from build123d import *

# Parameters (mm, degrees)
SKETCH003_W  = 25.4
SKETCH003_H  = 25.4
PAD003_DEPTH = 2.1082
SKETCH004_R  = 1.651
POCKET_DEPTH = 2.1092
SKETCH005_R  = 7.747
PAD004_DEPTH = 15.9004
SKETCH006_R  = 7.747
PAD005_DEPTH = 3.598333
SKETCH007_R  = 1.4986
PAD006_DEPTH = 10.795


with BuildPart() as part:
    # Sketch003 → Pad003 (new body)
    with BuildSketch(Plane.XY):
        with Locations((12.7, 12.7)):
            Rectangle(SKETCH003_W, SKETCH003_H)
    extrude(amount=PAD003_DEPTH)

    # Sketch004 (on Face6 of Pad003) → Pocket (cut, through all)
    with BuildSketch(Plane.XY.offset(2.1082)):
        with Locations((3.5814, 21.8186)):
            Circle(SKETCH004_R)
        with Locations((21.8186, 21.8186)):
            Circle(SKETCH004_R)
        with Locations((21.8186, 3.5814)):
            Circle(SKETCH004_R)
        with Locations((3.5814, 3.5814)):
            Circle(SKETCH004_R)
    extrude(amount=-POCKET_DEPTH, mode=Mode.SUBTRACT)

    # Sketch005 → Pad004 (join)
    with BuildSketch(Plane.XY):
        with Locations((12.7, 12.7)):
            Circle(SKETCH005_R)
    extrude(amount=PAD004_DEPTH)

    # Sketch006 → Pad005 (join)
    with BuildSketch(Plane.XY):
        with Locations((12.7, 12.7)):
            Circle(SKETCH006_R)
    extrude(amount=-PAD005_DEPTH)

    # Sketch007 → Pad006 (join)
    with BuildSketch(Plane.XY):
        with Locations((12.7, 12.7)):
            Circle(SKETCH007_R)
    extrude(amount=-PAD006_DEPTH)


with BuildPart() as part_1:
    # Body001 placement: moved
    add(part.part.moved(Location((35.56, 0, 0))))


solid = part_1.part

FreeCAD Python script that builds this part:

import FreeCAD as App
import Part
import Sketcher

V = App.Vector
Q = App.Units.Quantity

doc = App.newDocument("Part")
body = doc.addObject("PartDesign::Body", "Body")

sketch1 = body.newObject("Sketcher::SketchObject", "Sketch")
sketch1.AttachmentSupport = (doc.getObject("XY_Plane"), [""])
sketch1.MapMode = "FlatFace"
sketch1.addGeometry([
    Part.LineSegment(V(0, 25, 0), V(0, 0, 0)),
    Part.LineSegment(V(0, 0, 0), V(25, 0, 0)),
    Part.LineSegment(V(25, 0, 0), V(25, 25, 0)),
    Part.LineSegment(V(25, 25, 0), V(0, 25, 0)),
], False)
sketch1.addConstraint([
    Sketcher.Constraint("Coincident", 0, 2, 1, 1),
    Sketcher.Constraint("Coincident", 1, 2, 2, 1),
    Sketcher.Constraint("Coincident", 2, 2, 3, 1),
    Sketcher.Constraint("Coincident", 3, 2, 0, 1),
    Sketcher.Constraint("Vertical", 0),
    Sketcher.Constraint("Horizontal", 1),
    Sketcher.Constraint("Vertical", 2),
    Sketcher.Constraint("Horizontal", 3),
    Sketcher.Constraint("Coincident", 0, 2, -1, 1),
    Sketcher.Constraint("Equal", 3, 0),
    Sketcher.Constraint("DistanceX", 1, 1, 1, 2, Q("1 in")),
])
pad1 = body.newObject("PartDesign::Pad", "Pad")
pad1.Profile = sketch1
pad1.Length = Q("0.083 in")

sketch2 = body.newObject("Sketcher::SketchObject", "Sketch001")
sketch2.AttachmentSupport = (doc.getObject("XY_Plane"), [""])
sketch2.MapMode = "FlatFace"
sketch2.AttachmentOffset = App.Placement(V(0, 0, 0.083 * 25.4), App.Rotation())
sketch2.addGeometry([
    Part.Circle(V(3.6, 21.8, 0), V(0, 0, 1), 1.7),
    Part.Circle(V(21.8, 21.8, 0), V(0, 0, 1), 1.7),
    Part.Circle(V(21.8, 3.6, 0), V(0, 0, 1), 1.7),
    Part.Circle(V(3.6, 3.6, 0), V(0, 0, 1), 1.7),
], False)
sketch2.addConstraint([
    Sketcher.Constraint("Equal", 0, 1),
    Sketcher.Constraint("Equal", 1, 2),
    Sketcher.Constraint("Equal", 2, 3),
    Sketcher.Constraint("Horizontal", 0, 3, 1, 3),
    Sketcher.Constraint("Horizontal", 2, 3, 3, 3),
    Sketcher.Constraint("Vertical", 1, 3, 2, 3),
    Sketcher.Constraint("Vertical", 0, 3, 3, 3),
    Sketcher.Constraint("Diameter", 0, Q("0.13 in")),
    Sketcher.Constraint("DistanceX", -1, 1, 0, 3, Q("0.141 in")),
    Sketcher.Constraint("DistanceY", -1, 1, 0, 3, Q("0.859 in")),
    Sketcher.Constraint("DistanceX", -1, 1, 1, 3, Q("0.859 in")),
    Sketcher.Constraint("DistanceY", -1, 1, 2, 3, Q("0.141 in")),
])
pocket1 = body.newObject("PartDesign::Pocket", "Pocket")
pocket1.Profile = sketch2
pocket1.Type = "ThroughAll"

sketch3 = body.newObject("Sketcher::SketchObject", "Sketch002")
sketch3.AttachmentSupport = (doc.getObject("XY_Plane"), [""])
sketch3.MapMode = "FlatFace"
sketch3.addGeometry(Part.Circle(V(13, 13, 0), V(0, 0, 1), 8), False)
sketch3.addConstraint([
    Sketcher.Constraint("Diameter", 0, Q("0.61 in")),
    Sketcher.Constraint("DistanceX", -1, 1, 0, 3, Q("0.5 in")),
    Sketcher.Constraint("DistanceY", -1, 1, 0, 3, Q("0.5 in")),
])
pad2 = body.newObject("PartDesign::Pad", "Pad001")
pad2.Profile = sketch3
pad2.Length = Q("0.626 in")

sketch4 = body.newObject("Sketcher::SketchObject", "Sketch003")
sketch4.AttachmentSupport = (doc.getObject("XY_Plane"), [""])
sketch4.MapMode = "FlatFace"
sketch4.addGeometry(Part.Circle(V(13, 13, 0), V(0, 0, 1), 8), False)
sketch4.addConstraint([
    Sketcher.Constraint("Diameter", 0, Q("0.61 in")),
    Sketcher.Constraint("DistanceX", -1, 1, 0, 3, Q("0.5 in")),
    Sketcher.Constraint("DistanceY", -1, 1, 0, 3, Q("0.5 in")),
])
pad3 = body.newObject("PartDesign::Pad", "Pad002")
pad3.Profile = sketch4
pad3.Length = 3.598333
pad3.Reversed = True

sketch5 = body.newObject("Sketcher::SketchObject", "Sketch004")
sketch5.AttachmentSupport = (doc.getObject("XY_Plane"), [""])
sketch5.MapMode = "FlatFace"
sketch5.addGeometry(Part.Circle(V(12.7, 12.7, 0), V(0, 0, 1), 1.5), False)
sketch5.addConstraint([
    Sketcher.Constraint("Diameter", 0, Q("0.118 in")),
    Sketcher.Constraint("DistanceX", -1, 1, 0, 3, Q("0.5 in")),
    Sketcher.Constraint("DistanceY", -1, 1, 0, 3, Q("0.5 in")),
])
pad4 = body.newObject("PartDesign::Pad", "Pad003")
pad4.Profile = sketch5
pad4.Length = Q("0.425 in")
pad4.Reversed = True
body2 = doc.addObject("PartDesign::Body", "Body001")
doc.recompute()

body.Placement = App.Placement(V(35.56, 0, 0), App.Rotation(V(0, 0, 1), 0))
boolean = body2.newObject("PartDesign::Boolean", "Boolean")
boolean.Type = "Fuse"
boolean.addObjects([body])

doc.recompute()
